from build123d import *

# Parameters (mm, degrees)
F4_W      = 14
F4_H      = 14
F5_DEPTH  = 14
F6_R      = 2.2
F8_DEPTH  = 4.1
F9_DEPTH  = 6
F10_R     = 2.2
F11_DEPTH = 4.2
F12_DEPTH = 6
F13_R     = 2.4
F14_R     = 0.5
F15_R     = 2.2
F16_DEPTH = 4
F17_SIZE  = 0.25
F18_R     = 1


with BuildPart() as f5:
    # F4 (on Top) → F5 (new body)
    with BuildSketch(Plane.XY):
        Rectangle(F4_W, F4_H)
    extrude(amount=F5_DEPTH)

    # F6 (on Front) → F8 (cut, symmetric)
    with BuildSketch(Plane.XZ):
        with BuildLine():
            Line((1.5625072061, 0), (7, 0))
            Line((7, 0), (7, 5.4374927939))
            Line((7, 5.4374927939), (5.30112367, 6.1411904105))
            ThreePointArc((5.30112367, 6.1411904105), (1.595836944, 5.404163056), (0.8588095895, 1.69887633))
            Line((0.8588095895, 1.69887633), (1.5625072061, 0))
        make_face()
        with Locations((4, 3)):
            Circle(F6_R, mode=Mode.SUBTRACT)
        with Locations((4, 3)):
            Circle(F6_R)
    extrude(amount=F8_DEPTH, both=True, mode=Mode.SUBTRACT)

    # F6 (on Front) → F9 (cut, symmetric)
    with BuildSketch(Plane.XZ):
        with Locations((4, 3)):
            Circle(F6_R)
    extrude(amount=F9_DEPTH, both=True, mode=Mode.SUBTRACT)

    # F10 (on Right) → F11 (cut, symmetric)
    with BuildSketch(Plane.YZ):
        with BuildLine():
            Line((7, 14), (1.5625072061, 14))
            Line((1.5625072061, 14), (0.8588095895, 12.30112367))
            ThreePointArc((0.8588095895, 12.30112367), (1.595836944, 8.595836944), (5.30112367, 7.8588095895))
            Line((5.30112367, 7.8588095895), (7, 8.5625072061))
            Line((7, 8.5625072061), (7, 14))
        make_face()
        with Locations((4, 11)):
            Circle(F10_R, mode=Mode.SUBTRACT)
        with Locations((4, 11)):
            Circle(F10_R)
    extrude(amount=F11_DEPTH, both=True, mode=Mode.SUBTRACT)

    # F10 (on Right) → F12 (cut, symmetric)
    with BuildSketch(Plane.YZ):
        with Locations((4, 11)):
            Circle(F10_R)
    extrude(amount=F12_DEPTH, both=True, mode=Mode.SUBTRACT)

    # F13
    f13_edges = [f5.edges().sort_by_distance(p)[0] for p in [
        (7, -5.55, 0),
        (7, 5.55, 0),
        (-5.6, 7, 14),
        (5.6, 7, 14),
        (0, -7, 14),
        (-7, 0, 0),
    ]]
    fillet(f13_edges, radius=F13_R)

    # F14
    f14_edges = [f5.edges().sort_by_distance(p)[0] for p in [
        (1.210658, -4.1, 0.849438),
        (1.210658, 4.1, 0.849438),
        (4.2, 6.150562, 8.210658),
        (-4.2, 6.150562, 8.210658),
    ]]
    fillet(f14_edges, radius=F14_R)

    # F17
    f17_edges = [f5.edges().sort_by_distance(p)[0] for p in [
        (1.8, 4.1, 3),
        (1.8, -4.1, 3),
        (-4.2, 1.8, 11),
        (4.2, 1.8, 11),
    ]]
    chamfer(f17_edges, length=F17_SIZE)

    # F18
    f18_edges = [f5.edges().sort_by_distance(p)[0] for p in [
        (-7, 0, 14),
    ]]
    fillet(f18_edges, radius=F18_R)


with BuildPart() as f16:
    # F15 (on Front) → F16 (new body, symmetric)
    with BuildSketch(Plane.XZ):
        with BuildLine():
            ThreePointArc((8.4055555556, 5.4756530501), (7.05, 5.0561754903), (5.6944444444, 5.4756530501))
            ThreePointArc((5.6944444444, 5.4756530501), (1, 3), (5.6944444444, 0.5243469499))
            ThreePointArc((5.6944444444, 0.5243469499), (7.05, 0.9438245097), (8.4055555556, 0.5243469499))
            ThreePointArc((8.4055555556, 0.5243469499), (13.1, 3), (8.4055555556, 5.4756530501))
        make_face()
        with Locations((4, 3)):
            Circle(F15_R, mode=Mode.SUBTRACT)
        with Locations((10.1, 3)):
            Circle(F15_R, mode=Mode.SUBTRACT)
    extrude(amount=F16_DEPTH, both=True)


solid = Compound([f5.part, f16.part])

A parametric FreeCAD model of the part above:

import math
import FreeCAD as App
import Part
import Sketcher

V = App.Vector
Q = App.Units.Quantity


def edges_at(feature, points):
    """Names of the edges that pass closest to the given points."""
    edges = feature.Shape.Edges
    near = lambda p: min(range(len(edges)), key=lambda i: edges[i].distToShape(Part.Vertex(*p))[0])
    return sorted({f"Edge{near(p) + 1}" for p in points})


def add_polygon(sketch, points):
    """Adds a closed chain of lines whose ends are joined by coincident constraints."""
    first, n = sketch.GeometryCount, len(points)
    for a, b in zip(points, points[1:] + points[:1]):
        sketch.addGeometry(Part.LineSegment(App.Vector(*a, 0), App.Vector(*b, 0)), False)
    for i in range(n):
        sketch.addConstraint(Sketcher.Constraint("Coincident", first + i, 2, first + (i + 1) % n, 1))

doc = App.newDocument("Part")
params = doc.addObject("Spreadsheet::Sheet", "Params")
for row, (alias, value) in enumerate([
    ("sketch1_width", "14 mm"),
    ("pad1_length", "14 mm"),
    ("sketch2_radius", "3.4 mm"),
    ("pocket1_length", "8.2 mm"),
    ("sketch3_diameter", "4.4 mm"),
    ("pocket2_length", "12 mm"),
    ("sketch4_radius", "3.4 mm"),
    ("pocket3_length", "8.4 mm"),
    ("sketch5_diameter", "4.4 mm"),
    ("pocket4_length", "12 mm"),
    ("fillet_radius", "2.4 mm"),
    ("fillet2_radius", "0.5 mm"),
    ("chamfer_size", "0.25 mm"),
    ("fillet3_radius", "1 mm"),
    ("sketch6_radius", "3 mm"),
    ("sketch6_diameter", "4.4 mm"),
    ("sketch6_radius2", "2.4 mm"),
    ("pad2_length", "8 mm"),
], start=1):
    params.set(f"A{row}", alias)
    params.set(f"B{row}", "=" + value)
    params.setAlias(f"B{row}", alias)

body = doc.addObject("PartDesign::Body", "Body")

# Sketch on XY plane
sketch1 = body.newObject("Sketcher::SketchObject", "Sketch")
sketch1.AttachmentSupport = (doc.getObject("XY_Plane"), [""])
sketch1.MapMode = "FlatFace"
add_polygon(sketch1, [(-7, 7), (-7, -7), (7, -7), (7, 7)])  # lines 0-3
sketch1.addConstraint([
    Sketcher.Constraint("Vertical", 0),
    Sketcher.Constraint("Horizontal", 1),
    Sketcher.Constraint("Vertical", 2),
    Sketcher.Constraint("Horizontal", 3),
    Sketcher.Constraint("Symmetric", 0, 2, 2, 2, -1, 1),
    Sketcher.Constraint("Equal", 3, 0),
    Sketcher.Constraint("DistanceX", 1, 1, 1, 2, Q("14 mm")),
])
sketch1.setExpression("Constraints[10]", "Params.sketch1_width")
pad1 = body.newObject("PartDesign::Pad", "Pad")
pad1.Profile = sketch1
pad1.setExpression("Length", "Params.pad1_length")

# Sketch on XZ plane
sketch2 = body.newObject("Sketcher::SketchObject", "Sketch001")
sketch2.AttachmentSupport = (doc.getObject("XZ_Plane"), [""])
sketch2.MapMode = "FlatFace"
sketch2.addGeometry([
    Part.LineSegment(V(1.562507, 0, 0), V(7, 0, 0)),  # 0
    Part.LineSegment(V(7, 0, 0), V(7, 5.437493, 0)),  # 1
    Part.LineSegment(V(7, 5.437493, 0), V(5.301124, 6.14119, 0)),  # 2
    Part.ArcOfCircle(Part.Circle(V(4, 3, 0), V(0, 0, 1), 3.4), math.radians(67.5), math.radians(202.5)),  # 3
    Part.LineSegment(V(0.85881, 1.698876, 0), V(1.562507, 0, 0)),  # 4
], False)
sketch2.addConstraint([
    Sketcher.Constraint("Coincident", 0, 2, 1, 1),
    Sketcher.Constraint("Coincident", 1, 2, 2, 1),
    Sketcher.Constraint("Tangent", 2, 2, 3, 1),
    Sketcher.Constraint("Tangent", 3, 2, 4, 1),
    Sketcher.Constraint("Coincident", 4, 2, 0, 1),
    Sketcher.Constraint("Horizontal", 0),
    Sketcher.Constraint("Vertical", 1),
    Sketcher.Constraint("PointOnObject", 0, 2, -1),
    Sketcher.Constraint("Equal", 0, 1),
    Sketcher.Constraint("Equal", 2, 4),
    Sketcher.Constraint("Radius", 3, Q("3.4 mm")),
    Sketcher.Constraint("DistanceX", -1, 1, 3, 3, Q("4 mm")),
    Sketcher.Constraint("DistanceY", -1, 1, 3, 3, Q("3 mm")),
    Sketcher.Constraint("Angle", 2, Q("157.5 deg")),
])
sketch2.setExpression("Constraints[10]", "Params.sketch2_radius")
pocket1 = body.newObject("PartDesign::Pocket", "Pocket")
pocket1.Profile = sketch2
pocket1.setExpression("Length", "Params.pocket1_length")
pocket1.Midplane = True

# Sketch on XZ plane
sketch3 = body.newObject("Sketcher::SketchObject", "Sketch002")
sketch3.AttachmentSupport = (doc.getObject("XZ_Plane"), [""])
sketch3.MapMode = "FlatFace"
sketch3.addGeometry(Part.Circle(V(4, 3, 0), V(0, 0, 1), 2.2), False)
sketch3.addConstraint([
    Sketcher.Constraint("Diameter", 0, Q("4.4 mm")),
    Sketcher.Constraint("DistanceX", -1, 1, 0, 3, Q("4 mm")),
    Sketcher.Constraint("DistanceY", -1, 1, 0, 3, Q("3 mm")),
])
sketch3.setExpression("Constraints[0]", "Params.sketch3_diameter")
pocket2 = body.newObject("PartDesign::Pocket", "Pocket001")
pocket2.Profile = sketch3
pocket2.setExpression("Length", "Params.pocket2_length")
pocket2.Midplane = True

# Sketch on YZ plane
sketch4 = body.newObject("Sketcher::SketchObject", "Sketch003")
sketch4.AttachmentSupport = (doc.getObject("YZ_Plane"), [""])
sketch4.MapMode = "FlatFace"
sketch4.addGeometry([
    Part.LineSegment(V(7, 14, 0), V(1.562507, 14, 0)),  # 0
    Part.LineSegment(V(1.562507, 14, 0), V(0.85881, 12.301124, 0)),  # 1
    Part.ArcOfCircle(Part.Circle(V(4, 11, 0), V(0, 0, 1), 3.4), math.radians(157.5), math.radians(292.5)),  # 2
    Part.LineSegment(V(5.301124, 7.85881, 0), V(7, 8.562507, 0)),  # 3
    Part.LineSegment(V(7, 8.562507, 0), V(7, 14, 0)),  # 4
], False)
sketch4.addConstraint([
    Sketcher.Constraint("Coincident", 0, 2, 1, 1),
    Sketcher.Constraint("Tangent", 1, 2, 2, 1),
    Sketcher.Constraint("Tangent", 2, 2, 3, 1),
    Sketcher.Constraint("Coincident", 3, 2, 4, 1),
    Sketcher.Constraint("Coincident", 4, 2, 0, 1),
    Sketcher.Constraint("Horizontal", 0),
    Sketcher.Constraint("Vertical", 4),
    Sketcher.Constraint("Equal", 0, 4),
    Sketcher.Constraint("Equal", 1, 3),
    Sketcher.Constraint("Radius", 2, Q("3.4 mm")),
    Sketcher.Constraint("DistanceX", -1, 1, 2, 3, Q("4 mm")),
    Sketcher.Constraint("DistanceY", -1, 1, 2, 3, Q("11 mm")),
    Sketcher.Constraint("DistanceY", -1, 1, 0, 2, Q("14 mm")),
    Sketcher.Constraint("Angle", 1, Q("-112.5 deg")),
])
sketch4.setExpression("Constraints[9]", "Params.sketch4_radius")
pocket3 = body.newObject("PartDesign::Pocket", "Pocket002")
pocket3.Profile = sketch4
pocket3.setExpression("Length", "Params.pocket3_length")
pocket3.Midplane = True

# Sketch on YZ plane
sketch5 = body.newObject("Sketcher::SketchObject", "Sketch004")
sketch5.AttachmentSupport = (doc.getObject("YZ_Plane"), [""])
sketch5.MapMode = "FlatFace"
sketch5.addGeometry(Part.Circle(V(4, 11, 0), V(0, 0, 1), 2.2), False)
sketch5.addConstraint([
    Sketcher.Constraint("Diameter", 0, Q("4.4 mm")),
    Sketcher.Constraint("DistanceX", -1, 1, 0, 3, Q("4 mm")),
    Sketcher.Constraint("DistanceY", -1, 1, 0, 3, Q("11 mm")),
])
sketch5.setExpression("Constraints[0]", "Params.sketch5_diameter")
pocket4 = body.newObject("PartDesign::Pocket", "Pocket003")
pocket4.Profile = sketch5
pocket4.setExpression("Length", "Params.pocket4_length")
pocket4.Midplane = True
doc.recompute()

fillet = body.newObject("PartDesign::Fillet", "Fillet")
fillet.Base = (pocket4, edges_at(pocket4, [
    (7, -5.55, 0),
    (7, 5.55, 0),
    (-5.6, 7, 14),
    (5.6, 7, 14),
    (0, -7, 14),
    (-7, 0, 0),
]))
fillet.setExpression("Radius", "Params.fillet_radius")
doc.recompute()

fillet2 = body.newObject("PartDesign::Fillet", "Fillet001")
fillet2.Base = (fillet, edges_at(fillet, [
    (1.211, -4.1, 0.849),
    (1.211, 4.1, 0.849),
    (4.2, 6.151, 8.211),
    (-4.2, 6.151, 8.211),
]))
fillet2.setExpression("Radius", "Params.fillet2_radius")
doc.recompute()

chamfer = body.newObject("PartDesign::Chamfer", "Chamfer")
chamfer.Base = (fillet2, edges_at(fillet2, [
    (1.8, 4.1, 3),
    (1.8, -4.1, 3),
    (-4.2, 1.8, 11),
    (4.2, 1.8, 11),
]))
chamfer.setExpression("Size", "Params.chamfer_size")
doc.recompute()

fillet3 = body.newObject("PartDesign::Fillet", "Fillet002")
fillet3.Base = (chamfer, edges_at(chamfer, [(-7, 0, 14)]))
fillet3.setExpression("Radius", "Params.fillet3_radius")
body2 = doc.addObject("PartDesign::Body", "Body001")

# Sketch on XZ plane
sketch6 = body2.newObject("Sketcher::SketchObject", "Sketch005")
sketch6.AttachmentSupport = (doc.getObject("XZ_Plane001"), [""])
sketch6.MapMode = "FlatFace"
sketch6.addGeometry([
    Part.ArcOfCircle(Part.Circle(V(7.05, 7.456175, 0), V(0, 0, 1), 2.4), math.radians(-124.389433), math.radians(-55.610567)),  # 0
    Part.ArcOfCircle(Part.Circle(V(4, 3, 0), V(0, 0, 1), 3), math.radians(55.610567), math.radians(304.389433)),  # 1
    Part.ArcOfCircle(Part.Circle(V(7.05, -1.456175, 0), V(0, 0, 1), 2.4), math.radians(55.610567), math.radians(124.389433)),  # 2
    Part.ArcOfCircle(Part.Circle(V(10.1, 3, 0), V(0, 0, 1), 3), math.radians(-124.389433), math.radians(124.389433)),  # 3
    Part.Circle(V(4, 3, 0), V(0, 0, 1), 2.2),  # 4
    Part.Circle(V(10.1, 3, 0), V(0, 0, 1), 2.2),  # 5
], False)
sketch6.addConstraint([
    Sketcher.Constraint("Tangent", 0, 1, 1, 1),
    Sketcher.Constraint("Tangent", 1, 2, 2, 2),
    Sketcher.Constraint("Tangent", 2, 1, 3, 1),
    Sketcher.Constraint("Tangent", 3, 2, 0, 2),
    Sketcher.Constraint("Coincident", 4, 3, 1, 3),
    Sketcher.Constraint("Coincident", 5, 3, 3, 3),
    Sketcher.Constraint("Equal", 0, 2),
    Sketcher.Constraint("Equal", 1, 3),
    Sketcher.Constraint("Equal", 4, 5),
    Sketcher.Constraint("Horizontal", 1, 3, 3, 3),
    Sketcher.Constraint("Radius", 1, Q("3 mm")),
    Sketcher.Constraint("Diameter", 4, Q("4.4 mm")),
    Sketcher.Constraint("Radius", 0, Q("2.4 mm")),
    Sketcher.Constraint("DistanceX", -1, 1, 1, 3, Q("4 mm")),
    Sketcher.Constraint("DistanceY", -1, 1, 1, 3, Q("3 mm")),
    Sketcher.Constraint("DistanceX", -1, 1, 3, 3, Q("10.1 mm")),
])
sketch6.setExpression("Constraints[10]", "Params.sketch6_radius")
sketch6.setExpression("Constraints[11]", "Params.sketch6_diameter")
sketch6.setExpression("Constraints[12]", "Params.sketch6_radius2")
pad2 = body2.newObject("PartDesign::Pad", "Pad001")
pad2.Profile = sketch6
pad2.setExpression("Length", "Params.pad2_length")
pad2.Midplane = True

doc.recompute()
